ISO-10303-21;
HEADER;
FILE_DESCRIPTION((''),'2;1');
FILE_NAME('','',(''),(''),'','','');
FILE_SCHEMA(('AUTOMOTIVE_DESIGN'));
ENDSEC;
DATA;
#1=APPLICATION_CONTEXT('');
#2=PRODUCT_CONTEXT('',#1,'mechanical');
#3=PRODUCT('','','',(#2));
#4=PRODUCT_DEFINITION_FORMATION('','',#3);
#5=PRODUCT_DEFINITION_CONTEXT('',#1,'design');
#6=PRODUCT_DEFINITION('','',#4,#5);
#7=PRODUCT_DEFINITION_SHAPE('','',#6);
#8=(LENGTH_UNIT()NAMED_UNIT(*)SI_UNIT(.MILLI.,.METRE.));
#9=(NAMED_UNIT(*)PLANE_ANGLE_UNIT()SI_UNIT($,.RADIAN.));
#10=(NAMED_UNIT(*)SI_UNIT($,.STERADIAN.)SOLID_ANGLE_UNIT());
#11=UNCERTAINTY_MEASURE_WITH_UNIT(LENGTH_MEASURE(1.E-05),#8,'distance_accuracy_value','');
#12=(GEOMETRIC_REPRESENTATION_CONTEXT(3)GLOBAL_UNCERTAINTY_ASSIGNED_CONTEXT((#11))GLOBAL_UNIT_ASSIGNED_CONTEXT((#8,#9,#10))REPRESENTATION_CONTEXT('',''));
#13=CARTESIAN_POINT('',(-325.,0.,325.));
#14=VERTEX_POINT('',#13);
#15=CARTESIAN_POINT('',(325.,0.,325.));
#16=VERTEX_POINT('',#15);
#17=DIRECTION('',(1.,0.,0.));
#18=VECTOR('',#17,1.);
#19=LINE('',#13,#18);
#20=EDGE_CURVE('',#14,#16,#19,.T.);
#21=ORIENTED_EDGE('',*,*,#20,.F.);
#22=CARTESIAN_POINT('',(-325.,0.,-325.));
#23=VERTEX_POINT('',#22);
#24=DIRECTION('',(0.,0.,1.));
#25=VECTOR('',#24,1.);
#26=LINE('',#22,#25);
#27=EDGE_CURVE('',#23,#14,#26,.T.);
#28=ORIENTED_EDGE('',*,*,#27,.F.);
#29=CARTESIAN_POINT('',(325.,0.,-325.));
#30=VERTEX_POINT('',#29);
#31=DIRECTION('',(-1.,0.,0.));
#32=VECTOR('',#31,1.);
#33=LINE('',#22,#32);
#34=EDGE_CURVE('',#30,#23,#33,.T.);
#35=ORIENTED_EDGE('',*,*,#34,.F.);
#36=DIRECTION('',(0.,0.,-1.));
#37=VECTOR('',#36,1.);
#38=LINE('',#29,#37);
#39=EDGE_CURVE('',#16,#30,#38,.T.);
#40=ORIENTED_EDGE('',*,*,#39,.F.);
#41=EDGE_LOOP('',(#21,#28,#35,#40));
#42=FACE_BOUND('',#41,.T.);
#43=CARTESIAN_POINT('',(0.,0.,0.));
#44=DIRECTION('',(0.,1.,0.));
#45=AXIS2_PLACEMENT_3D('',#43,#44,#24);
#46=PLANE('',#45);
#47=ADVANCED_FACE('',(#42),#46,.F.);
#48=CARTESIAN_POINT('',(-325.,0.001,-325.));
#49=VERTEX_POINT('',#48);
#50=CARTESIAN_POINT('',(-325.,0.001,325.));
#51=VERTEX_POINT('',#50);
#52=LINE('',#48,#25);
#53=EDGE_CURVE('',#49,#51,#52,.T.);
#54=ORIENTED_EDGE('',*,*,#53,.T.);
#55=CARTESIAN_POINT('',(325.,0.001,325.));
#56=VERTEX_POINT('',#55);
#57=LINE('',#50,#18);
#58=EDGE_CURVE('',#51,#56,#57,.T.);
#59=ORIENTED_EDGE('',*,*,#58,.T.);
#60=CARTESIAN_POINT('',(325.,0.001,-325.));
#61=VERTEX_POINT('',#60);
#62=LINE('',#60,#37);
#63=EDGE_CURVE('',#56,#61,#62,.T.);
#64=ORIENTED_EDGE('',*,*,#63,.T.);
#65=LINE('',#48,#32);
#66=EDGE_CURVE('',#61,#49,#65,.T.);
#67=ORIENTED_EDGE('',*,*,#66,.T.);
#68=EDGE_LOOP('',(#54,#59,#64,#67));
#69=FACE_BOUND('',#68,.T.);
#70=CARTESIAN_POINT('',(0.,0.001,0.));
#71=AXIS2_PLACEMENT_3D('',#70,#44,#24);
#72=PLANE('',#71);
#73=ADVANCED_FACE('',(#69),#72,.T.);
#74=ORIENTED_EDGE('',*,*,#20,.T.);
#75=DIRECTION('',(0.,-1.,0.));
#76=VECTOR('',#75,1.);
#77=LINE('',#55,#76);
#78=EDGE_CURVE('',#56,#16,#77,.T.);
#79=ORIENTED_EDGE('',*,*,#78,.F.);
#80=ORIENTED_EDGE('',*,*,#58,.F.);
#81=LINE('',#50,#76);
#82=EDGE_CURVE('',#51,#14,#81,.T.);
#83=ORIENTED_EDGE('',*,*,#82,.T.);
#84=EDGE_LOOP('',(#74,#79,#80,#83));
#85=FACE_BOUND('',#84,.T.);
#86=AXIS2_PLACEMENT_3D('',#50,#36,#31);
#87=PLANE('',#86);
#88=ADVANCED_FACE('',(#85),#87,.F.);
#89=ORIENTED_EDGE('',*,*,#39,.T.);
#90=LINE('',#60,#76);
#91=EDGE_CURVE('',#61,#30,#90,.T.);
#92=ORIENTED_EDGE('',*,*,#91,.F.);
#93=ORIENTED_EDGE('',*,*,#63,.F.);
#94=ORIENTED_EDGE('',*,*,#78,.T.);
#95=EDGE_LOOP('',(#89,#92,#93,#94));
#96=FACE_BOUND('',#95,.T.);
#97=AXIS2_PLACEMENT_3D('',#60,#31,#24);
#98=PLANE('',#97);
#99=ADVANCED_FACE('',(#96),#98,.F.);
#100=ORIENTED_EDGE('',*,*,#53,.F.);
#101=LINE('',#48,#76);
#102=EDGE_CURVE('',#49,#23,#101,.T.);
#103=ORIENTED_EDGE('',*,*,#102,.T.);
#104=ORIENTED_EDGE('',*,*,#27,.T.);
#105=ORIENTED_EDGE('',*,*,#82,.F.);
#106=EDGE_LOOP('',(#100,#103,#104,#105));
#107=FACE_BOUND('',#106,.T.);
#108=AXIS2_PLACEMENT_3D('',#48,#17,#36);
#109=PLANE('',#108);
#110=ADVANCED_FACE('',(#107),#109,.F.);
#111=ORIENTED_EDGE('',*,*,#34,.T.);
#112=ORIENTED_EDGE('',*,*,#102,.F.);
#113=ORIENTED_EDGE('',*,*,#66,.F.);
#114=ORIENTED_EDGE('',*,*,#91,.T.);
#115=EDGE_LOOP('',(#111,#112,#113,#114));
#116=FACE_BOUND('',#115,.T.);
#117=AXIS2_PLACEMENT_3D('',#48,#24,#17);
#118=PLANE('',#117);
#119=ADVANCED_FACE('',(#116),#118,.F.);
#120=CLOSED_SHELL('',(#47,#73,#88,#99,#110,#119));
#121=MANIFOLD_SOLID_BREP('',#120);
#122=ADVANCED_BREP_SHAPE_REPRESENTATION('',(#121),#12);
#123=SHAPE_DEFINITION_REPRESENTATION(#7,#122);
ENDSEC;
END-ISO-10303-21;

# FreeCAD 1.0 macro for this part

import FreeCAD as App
import Part
import Sketcher
from FreeCAD import Vector

doc = App.newDocument("Part")
params = doc.addObject("Spreadsheet::Sheet", "Params")
for row, (alias, value) in enumerate([
    ("sketch1_width", "650 mm"),
    ("pad1_length", "0.001 mm"),
], start=1):
    params.set(f"A{row}", alias)
    params.set(f"B{row}", "=" + value)
    params.setAlias(f"B{row}", alias)

body = doc.addObject("PartDesign::Body", "Body")

# Sketch on XZ plane
sketch1 = doc.addObject("Sketcher::SketchObject", "Sketch")
body.addObject(sketch1)
sketch1.AttachmentSupport = (doc.XZ_Plane, [""])
sketch1.MapMode = "FlatFace"
sketch1.addGeometry(Part.LineSegment(Vector(-325, -325, 0), Vector(-325, 325, 0)), False)
sketch1.addGeometry(Part.LineSegment(Vector(-325, 325, 0), Vector(325, 325, 0)), False)
sketch1.addGeometry(Part.LineSegment(Vector(325, 325, 0), Vector(325, -325, 0)), False)
sketch1.addGeometry(Part.LineSegment(Vector(325, -325, 0), Vector(-325, -325, 0)), False)
sketch1.addConstraint(Sketcher.Constraint("Coincident", 0, 2, 1, 1))
sketch1.addConstraint(Sketcher.Constraint("Coincident", 1, 2, 2, 1))
sketch1.addConstraint(Sketcher.Constraint("Coincident", 2, 2, 3, 1))
sketch1.addConstraint(Sketcher.Constraint("Coincident", 3, 2, 0, 1))
sketch1.addConstraint(Sketcher.Constraint("Vertical", 0))
sketch1.addConstraint(Sketcher.Constraint("Horizontal", 1))
sketch1.addConstraint(Sketcher.Constraint("Vertical", 2))
sketch1.addConstraint(Sketcher.Constraint("Horizontal", 3))
sketch1.addConstraint(Sketcher.Constraint("Symmetric", 0, 2, 2, 2, -1, 1))
sketch1.addConstraint(Sketcher.Constraint("Equal", 3, 0))
sketch1.addConstraint(Sketcher.Constraint("DistanceX", 1, 1, 1, 2, 650.0))
sketch1.setExpression("Constraints[10]", "Params.sketch1_width")
pad1 = doc.addObject("PartDesign::Pad", "Pad")
body.addObject(pad1)
pad1.Profile = sketch1
pad1.setExpression("Length", "Params.pad1_length")
pad1.Reversed = True

doc.recompute()
